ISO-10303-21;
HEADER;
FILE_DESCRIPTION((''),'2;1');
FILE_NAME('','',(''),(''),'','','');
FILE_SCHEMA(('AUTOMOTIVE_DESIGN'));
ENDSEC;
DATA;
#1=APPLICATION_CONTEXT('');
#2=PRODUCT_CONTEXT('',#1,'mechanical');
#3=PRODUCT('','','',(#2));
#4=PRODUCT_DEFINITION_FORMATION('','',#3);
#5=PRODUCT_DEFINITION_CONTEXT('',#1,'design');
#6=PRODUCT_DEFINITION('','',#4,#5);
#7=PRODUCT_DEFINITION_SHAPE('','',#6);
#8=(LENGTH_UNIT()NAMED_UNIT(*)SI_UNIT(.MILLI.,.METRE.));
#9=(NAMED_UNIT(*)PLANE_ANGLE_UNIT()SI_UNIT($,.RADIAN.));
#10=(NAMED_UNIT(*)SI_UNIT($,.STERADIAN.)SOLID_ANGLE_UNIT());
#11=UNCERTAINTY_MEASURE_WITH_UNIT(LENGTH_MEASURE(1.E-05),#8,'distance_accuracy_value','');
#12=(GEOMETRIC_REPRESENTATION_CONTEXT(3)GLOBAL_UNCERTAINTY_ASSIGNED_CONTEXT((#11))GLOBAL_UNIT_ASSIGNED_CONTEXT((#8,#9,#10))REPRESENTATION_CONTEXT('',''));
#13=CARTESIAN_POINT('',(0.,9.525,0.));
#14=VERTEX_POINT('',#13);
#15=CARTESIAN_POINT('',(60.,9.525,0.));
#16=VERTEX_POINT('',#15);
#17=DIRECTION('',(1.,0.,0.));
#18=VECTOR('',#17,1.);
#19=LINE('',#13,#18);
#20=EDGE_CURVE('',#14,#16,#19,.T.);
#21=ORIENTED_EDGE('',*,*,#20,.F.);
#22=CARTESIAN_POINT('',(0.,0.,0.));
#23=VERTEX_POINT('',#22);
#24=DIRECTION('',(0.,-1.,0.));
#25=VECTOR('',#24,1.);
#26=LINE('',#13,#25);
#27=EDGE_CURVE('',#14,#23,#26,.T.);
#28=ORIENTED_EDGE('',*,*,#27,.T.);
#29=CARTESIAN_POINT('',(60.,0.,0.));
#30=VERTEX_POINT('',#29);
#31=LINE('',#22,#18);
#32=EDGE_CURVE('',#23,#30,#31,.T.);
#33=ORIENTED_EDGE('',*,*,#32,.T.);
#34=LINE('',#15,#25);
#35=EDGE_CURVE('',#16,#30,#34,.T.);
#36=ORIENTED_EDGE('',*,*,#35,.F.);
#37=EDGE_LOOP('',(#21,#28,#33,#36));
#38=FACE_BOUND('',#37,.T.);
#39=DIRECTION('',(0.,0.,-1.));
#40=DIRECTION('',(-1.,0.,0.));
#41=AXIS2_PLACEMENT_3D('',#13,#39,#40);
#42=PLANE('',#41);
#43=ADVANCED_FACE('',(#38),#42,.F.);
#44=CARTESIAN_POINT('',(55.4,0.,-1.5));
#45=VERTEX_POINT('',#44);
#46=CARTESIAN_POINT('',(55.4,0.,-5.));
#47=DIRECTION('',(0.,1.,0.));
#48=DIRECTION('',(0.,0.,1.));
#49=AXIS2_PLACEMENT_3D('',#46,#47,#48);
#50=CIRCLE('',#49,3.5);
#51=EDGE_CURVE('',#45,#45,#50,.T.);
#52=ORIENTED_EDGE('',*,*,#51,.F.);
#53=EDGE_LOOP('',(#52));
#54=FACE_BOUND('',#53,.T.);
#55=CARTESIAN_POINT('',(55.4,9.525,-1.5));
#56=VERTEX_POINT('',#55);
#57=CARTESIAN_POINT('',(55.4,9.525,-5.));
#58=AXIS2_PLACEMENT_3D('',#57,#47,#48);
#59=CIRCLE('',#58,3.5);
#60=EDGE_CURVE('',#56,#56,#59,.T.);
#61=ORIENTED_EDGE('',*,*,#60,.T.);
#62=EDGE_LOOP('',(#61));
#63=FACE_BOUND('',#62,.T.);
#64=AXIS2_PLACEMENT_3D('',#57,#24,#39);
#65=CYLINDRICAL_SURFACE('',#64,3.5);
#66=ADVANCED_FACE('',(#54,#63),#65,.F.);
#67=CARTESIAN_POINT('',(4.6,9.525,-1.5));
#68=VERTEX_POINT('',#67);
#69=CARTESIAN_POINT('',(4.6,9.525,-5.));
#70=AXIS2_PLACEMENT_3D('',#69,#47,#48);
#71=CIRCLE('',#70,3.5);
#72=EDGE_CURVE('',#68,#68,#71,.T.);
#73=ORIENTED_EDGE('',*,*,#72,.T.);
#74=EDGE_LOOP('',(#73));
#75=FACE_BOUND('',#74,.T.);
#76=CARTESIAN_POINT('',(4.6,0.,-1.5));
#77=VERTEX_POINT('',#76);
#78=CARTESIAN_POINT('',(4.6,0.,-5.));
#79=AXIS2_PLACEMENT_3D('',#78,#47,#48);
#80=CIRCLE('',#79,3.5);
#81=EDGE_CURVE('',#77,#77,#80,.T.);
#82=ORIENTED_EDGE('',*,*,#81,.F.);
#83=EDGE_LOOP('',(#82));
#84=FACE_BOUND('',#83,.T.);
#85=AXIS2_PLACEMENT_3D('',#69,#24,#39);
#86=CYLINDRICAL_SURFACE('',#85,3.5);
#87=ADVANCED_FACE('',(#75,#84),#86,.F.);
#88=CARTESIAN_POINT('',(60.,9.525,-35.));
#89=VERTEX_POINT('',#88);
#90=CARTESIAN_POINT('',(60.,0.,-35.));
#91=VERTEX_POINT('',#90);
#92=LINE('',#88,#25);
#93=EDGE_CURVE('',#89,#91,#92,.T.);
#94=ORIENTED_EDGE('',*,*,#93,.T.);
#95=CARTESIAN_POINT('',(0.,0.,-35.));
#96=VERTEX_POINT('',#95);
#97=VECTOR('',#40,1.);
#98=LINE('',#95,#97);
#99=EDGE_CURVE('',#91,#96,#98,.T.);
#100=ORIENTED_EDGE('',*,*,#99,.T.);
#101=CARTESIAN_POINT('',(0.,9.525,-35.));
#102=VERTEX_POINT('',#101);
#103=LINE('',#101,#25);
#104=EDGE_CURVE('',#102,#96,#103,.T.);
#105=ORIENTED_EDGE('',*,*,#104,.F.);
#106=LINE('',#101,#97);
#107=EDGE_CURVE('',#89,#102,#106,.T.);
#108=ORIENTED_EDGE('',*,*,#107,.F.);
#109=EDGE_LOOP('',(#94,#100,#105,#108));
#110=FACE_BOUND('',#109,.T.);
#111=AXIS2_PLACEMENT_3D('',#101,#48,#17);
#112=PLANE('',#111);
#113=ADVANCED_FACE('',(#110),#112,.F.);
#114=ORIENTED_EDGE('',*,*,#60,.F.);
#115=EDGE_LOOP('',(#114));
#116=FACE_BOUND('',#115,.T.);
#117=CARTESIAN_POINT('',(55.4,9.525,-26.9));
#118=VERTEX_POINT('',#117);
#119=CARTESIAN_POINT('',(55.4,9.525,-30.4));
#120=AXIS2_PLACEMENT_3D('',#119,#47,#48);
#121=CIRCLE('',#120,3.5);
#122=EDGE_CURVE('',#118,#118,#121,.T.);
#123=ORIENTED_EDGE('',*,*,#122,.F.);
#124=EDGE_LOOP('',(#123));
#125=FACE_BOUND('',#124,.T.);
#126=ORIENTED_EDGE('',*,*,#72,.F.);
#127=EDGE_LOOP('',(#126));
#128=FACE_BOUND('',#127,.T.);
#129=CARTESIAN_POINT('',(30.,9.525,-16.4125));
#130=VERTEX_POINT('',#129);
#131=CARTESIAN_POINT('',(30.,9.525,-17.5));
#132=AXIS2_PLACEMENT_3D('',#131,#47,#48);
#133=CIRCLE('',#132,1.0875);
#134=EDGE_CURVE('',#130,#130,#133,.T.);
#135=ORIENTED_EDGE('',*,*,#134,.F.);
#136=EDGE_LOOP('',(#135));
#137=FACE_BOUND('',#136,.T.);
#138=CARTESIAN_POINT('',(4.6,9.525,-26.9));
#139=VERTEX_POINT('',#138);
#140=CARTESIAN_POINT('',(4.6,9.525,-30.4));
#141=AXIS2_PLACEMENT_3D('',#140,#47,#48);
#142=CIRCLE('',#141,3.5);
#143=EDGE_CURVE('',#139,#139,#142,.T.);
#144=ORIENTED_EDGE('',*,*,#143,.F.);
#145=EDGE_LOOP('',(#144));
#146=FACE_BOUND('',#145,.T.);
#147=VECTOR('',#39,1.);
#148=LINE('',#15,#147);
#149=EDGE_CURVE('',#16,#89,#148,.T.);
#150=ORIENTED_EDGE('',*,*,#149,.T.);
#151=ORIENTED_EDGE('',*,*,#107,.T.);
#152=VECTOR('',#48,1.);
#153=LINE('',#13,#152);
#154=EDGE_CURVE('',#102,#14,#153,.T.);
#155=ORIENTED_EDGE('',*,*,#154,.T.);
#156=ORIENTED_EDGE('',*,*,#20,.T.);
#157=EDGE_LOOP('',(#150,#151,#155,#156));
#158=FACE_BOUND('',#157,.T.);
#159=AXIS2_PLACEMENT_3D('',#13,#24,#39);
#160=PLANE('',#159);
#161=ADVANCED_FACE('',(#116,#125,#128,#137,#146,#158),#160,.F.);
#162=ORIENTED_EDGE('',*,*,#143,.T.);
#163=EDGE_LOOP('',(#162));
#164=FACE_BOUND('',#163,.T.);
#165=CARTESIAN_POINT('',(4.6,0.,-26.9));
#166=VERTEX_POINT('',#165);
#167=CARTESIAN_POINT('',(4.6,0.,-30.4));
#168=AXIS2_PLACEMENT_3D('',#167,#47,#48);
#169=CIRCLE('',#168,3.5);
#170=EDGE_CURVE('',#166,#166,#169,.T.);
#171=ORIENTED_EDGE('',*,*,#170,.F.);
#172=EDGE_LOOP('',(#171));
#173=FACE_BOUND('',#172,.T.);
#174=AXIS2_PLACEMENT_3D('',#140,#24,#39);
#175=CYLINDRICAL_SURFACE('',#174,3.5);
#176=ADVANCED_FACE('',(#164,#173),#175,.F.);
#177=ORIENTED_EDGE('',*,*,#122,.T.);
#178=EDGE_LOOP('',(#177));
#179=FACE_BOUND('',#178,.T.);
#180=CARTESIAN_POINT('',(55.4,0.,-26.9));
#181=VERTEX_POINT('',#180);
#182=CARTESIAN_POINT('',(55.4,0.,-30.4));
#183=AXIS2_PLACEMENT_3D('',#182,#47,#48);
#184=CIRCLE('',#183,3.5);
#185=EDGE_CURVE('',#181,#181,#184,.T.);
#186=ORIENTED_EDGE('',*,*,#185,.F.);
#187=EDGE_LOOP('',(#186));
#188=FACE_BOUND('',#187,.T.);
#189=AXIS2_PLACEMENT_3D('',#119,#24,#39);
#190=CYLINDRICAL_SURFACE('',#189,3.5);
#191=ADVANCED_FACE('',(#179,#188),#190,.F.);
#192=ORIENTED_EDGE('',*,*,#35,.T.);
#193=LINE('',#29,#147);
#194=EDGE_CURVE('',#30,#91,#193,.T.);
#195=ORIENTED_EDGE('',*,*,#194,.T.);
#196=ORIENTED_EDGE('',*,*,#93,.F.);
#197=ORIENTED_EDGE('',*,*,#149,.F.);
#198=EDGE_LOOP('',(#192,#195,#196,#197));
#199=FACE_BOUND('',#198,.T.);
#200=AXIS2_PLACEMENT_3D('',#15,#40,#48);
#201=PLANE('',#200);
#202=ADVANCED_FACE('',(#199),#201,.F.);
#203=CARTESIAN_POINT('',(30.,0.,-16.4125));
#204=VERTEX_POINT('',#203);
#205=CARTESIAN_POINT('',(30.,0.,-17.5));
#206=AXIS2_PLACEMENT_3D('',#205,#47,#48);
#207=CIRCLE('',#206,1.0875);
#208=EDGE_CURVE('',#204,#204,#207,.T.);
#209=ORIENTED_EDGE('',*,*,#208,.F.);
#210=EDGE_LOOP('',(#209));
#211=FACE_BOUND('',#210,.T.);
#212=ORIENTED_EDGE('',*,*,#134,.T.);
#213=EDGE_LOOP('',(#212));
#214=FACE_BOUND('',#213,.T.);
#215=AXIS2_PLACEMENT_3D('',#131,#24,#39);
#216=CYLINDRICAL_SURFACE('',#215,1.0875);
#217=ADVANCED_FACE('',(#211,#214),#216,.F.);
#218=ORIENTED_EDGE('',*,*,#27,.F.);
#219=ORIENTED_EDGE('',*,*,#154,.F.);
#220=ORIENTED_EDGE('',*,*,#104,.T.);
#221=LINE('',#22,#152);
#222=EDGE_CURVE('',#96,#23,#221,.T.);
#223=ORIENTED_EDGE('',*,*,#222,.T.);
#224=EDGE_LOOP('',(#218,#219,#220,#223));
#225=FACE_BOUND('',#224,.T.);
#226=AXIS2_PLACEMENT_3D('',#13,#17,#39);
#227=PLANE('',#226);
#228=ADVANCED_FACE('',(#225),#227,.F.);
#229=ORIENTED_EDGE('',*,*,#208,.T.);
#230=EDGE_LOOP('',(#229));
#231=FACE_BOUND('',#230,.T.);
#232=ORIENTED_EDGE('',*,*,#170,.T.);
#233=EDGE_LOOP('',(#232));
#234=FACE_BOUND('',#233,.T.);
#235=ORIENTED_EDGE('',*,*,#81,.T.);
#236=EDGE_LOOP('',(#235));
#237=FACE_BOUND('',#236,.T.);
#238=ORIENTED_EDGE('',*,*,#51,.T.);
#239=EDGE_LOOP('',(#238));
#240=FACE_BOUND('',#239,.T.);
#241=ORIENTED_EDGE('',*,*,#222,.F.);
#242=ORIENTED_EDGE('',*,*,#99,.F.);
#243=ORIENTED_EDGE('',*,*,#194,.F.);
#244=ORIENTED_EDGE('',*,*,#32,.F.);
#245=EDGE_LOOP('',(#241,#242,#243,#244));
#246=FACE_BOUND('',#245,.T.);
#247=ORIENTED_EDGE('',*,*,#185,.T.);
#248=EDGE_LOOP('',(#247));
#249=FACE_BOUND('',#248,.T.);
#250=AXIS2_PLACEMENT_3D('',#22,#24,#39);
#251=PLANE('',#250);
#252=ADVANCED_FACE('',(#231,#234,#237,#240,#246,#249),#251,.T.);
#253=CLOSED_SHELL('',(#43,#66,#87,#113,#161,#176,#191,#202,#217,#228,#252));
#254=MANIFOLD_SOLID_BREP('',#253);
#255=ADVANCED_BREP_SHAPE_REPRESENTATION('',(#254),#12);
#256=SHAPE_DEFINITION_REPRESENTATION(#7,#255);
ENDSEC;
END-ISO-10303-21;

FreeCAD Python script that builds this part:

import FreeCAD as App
import Part
import Sketcher

V = App.Vector
Q = App.Units.Quantity


def add_polygon(sketch, points):
    """Adds a closed chain of lines whose ends are joined by coincident constraints."""
    first, n = sketch.GeometryCount, len(points)
    for a, b in zip(points, points[1:] + points[:1]):
        sketch.addGeometry(Part.LineSegment(App.Vector(*a, 0), App.Vector(*b, 0)), False)
    for i in range(n):
        sketch.addConstraint(Sketcher.Constraint("Coincident", first + i, 2, first + (i + 1) % n, 1))

doc = App.newDocument("Part")
body = doc.addObject("PartDesign::Body", "Body")

# Sketch on XZ plane
sketch1 = body.newObject("Sketcher::SketchObject", "Sketch")
sketch1.AttachmentSupport = (doc.getObject("XZ_Plane"), [""])
sketch1.MapMode = "FlatFace"
add_polygon(sketch1, [(0, -35), (0, 0), (60, 0), (60, -35)])  # lines 0-3
sketch1.addGeometry(Part.Circle(V(4.6, -5, 0), V(0, 0, 1), 3.5), False)  # 4
sketch1.addGeometry(Part.Circle(V(55.4, -5, 0), V(0, 0, 1), 3.5), False)  # 5
sketch1.addGeometry(Part.Circle(V(30, -17.5, 0), V(0, 0, 1), 1.1), False)  # 6
sketch1.addGeometry(Part.Circle(V(4.6, -30.4, 0), V(0, 0, 1), 3.5), False)  # 7
sketch1.addGeometry(Part.Circle(V(55.4, -30.4, 0), V(0, 0, 1), 3.5), False)  # 8
sketch1.addConstraint([
    Sketcher.Constraint("Vertical", 0),
    Sketcher.Constraint("Horizontal", 1),
    Sketcher.Constraint("Vertical", 2),
    Sketcher.Constraint("Horizontal", 3),
    Sketcher.Constraint("Coincident", 0, 2, -1, 1),
    Sketcher.Constraint("Equal", 4, 5),
    Sketcher.Constraint("Equal", 5, 7),
    Sketcher.Constraint("Equal", 7, 8),
    Sketcher.Constraint("Horizontal", 4, 3, 5, 3),
    Sketcher.Constraint("Horizontal", 7, 3, 8, 3),
    Sketcher.Constraint("Vertical", 4, 3, 7, 3),
    Sketcher.Constraint("Vertical", 5, 3, 8, 3),
    Sketcher.Constraint("Diameter", 4, Q("7 mm")),
    Sketcher.Constraint("DistanceX", 1, 1, 1, 2, Q("60 mm")),
    Sketcher.Constraint("DistanceY", 0, 1, 0, 2, Q("35 mm")),
    Sketcher.Constraint("Diameter", 6, Q("2.175 mm")),
    Sketcher.Constraint("DistanceY", 4, 3, -1, 1, Q("5 mm")),
    Sketcher.Constraint("DistanceX", -1, 1, 6, 3, Q("30 mm")),
    Sketcher.Constraint("DistanceX", -1, 1, 4, 3, Q("4.6 mm")),
    Sketcher.Constraint("DistanceX", -1, 1, 5, 3, Q("55.4 mm")),
    Sketcher.Constraint("DistanceY", 6, 3, -1, 1, Q("17.5 mm")),
    Sketcher.Constraint("DistanceY", 7, 3, -1, 1, Q("30.4 mm")),
])
pad1 = body.newObject("PartDesign::Pad", "Pad")
pad1.Profile = sketch1
pad1.Length = 9.525
pad1.Reversed = True

doc.recompute()
